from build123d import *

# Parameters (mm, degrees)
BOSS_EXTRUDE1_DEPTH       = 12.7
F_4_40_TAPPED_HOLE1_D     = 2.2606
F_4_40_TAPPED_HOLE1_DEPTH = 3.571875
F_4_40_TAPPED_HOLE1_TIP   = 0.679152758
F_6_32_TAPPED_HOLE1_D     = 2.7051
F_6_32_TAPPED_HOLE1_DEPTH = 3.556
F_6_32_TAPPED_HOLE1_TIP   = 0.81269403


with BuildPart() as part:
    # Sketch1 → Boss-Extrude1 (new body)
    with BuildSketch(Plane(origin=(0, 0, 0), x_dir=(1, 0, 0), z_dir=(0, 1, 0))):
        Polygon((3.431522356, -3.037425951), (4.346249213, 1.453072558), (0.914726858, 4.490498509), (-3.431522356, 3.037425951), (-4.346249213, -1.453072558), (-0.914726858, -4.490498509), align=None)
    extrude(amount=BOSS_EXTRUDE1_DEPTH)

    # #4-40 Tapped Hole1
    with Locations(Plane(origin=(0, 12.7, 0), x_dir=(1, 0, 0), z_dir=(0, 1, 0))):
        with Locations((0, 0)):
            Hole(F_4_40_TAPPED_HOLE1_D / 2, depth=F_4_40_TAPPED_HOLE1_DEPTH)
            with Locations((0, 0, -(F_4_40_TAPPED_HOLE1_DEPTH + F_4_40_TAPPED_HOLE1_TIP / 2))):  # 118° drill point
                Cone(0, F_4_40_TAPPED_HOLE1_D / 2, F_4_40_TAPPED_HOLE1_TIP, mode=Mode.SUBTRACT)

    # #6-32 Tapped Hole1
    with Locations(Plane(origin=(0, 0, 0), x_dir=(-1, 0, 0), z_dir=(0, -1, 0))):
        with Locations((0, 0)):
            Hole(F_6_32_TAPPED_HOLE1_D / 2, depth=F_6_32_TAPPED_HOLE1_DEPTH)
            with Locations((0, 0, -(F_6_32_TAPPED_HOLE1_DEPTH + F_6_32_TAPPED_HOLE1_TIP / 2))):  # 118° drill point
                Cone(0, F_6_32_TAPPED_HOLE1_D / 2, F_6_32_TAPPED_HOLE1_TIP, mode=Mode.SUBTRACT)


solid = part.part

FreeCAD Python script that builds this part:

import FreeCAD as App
import Part
import Sketcher
from FreeCAD import Vector
Q = App.Units.Quantity


def add_polygon(sketch, points):
    """Adds a closed chain of lines whose ends are joined by coincident constraints."""
    first, n = sketch.GeometryCount, len(points)
    for a, b in zip(points, points[1:] + points[:1]):
        sketch.addGeometry(Part.LineSegment(App.Vector(*a, 0), App.Vector(*b, 0)), False)
    for i in range(n):
        sketch.addConstraint(Sketcher.Constraint("Coincident", first + i, 2, first + (i + 1) % n, 1))

doc = App.newDocument("Part")
body = doc.addObject("PartDesign::Body", "Body")

sketch1 = body.newObject("Sketcher::SketchObject", "Sketch")
sketch1.AttachmentSupport = (doc.getObject("XZ_Plane"), [""])
sketch1.MapMode = "FlatFace"
add_polygon(sketch1, [(3.4, 3), (4.3, -1.5), (0.9, -4.5), (-3.4, -3), (-4.3, 1.5), (-0.9, 4.5)])
sketch1.addConstraint([
    Sketcher.Constraint("Symmetric", 0, 2, 3, 2, -1, 1),
    Sketcher.Constraint("Symmetric", 1, 2, 4, 2, -1, 1),
    Sketcher.Constraint("Symmetric", 2, 2, 5, 2, -1, 1),
    Sketcher.Constraint("Equal", 0, 1),
    Sketcher.Constraint("Equal", 1, 2),
    Sketcher.Constraint("DistanceY", 1, 2, -1, 1, Q("4.490499 mm")),
    Sketcher.Constraint("DistanceY", 2, 2, 3, 2, Q("4.490499 mm")),
    Sketcher.Constraint("DistanceX", 3, 2, 0, 2, Q("8.692498 mm")),
    Sketcher.Constraint("DistanceX", 2, 2, 1, 2, Q("4.346249 mm")),
])
pad1 = body.newObject("PartDesign::Pad", "Pad")
pad1.Profile = sketch1
pad1.Length = Q("0.5 in")
pad1.Reversed = True

sketch2 = body.newObject("Sketcher::SketchObject", "Sketch001")
sketch2.AttachmentSupport = (doc.getObject("XZ_Plane"), [""])
sketch2.MapMode = "FlatFace"
sketch2.AttachmentOffset = App.Placement(Vector(0, 0, -0.5 * 25.4), App.Rotation())
sketch2.addGeometry(Part.Circle(Vector(0, 0, 0), Vector(0, 0, 1), 1.1), False)
sketch2.addConstraint([
    Sketcher.Constraint("Coincident", 0, 3, -1, 1),
    Sketcher.Constraint("Diameter", 0, Q("0.089 in")),
])
doc.recompute()
hole = body.newObject("PartDesign::Hole", "Hole")
hole.Profile = sketch2
hole.ThreadType = "None"
hole.Diameter = Q("0.089 in")
hole.DepthType = "Dimension"
hole.Depth = Q("0.140625 in")
hole.DrillPoint = "Angled"
hole.DrillPointAngle = 118
hole.Reversed = True

sketch3 = body.newObject("Sketcher::SketchObject", "Sketch002")
sketch3.AttachmentSupport = (doc.getObject("XZ_Plane"), [""])
sketch3.MapMode = "FlatFace"
sketch3.addGeometry(Part.Circle(Vector(0, 0, 0), Vector(0, 0, 1), 1.4), False)
sketch3.addConstraint([
    Sketcher.Constraint("Coincident", 0, 3, -1, 1),
    Sketcher.Constraint("Diameter", 0, Q("0.1065 in")),
])
doc.recompute()
hole2 = body.newObject("PartDesign::Hole", "Hole001")
hole2.Profile = sketch3
hole2.ThreadType = "None"
hole2.Diameter = Q("0.1065 in")
hole2.DepthType = "Dimension"
hole2.Depth = Q("0.14 in")
hole2.DrillPoint = "Angled"
hole2.DrillPointAngle = 118

doc.recompute()
